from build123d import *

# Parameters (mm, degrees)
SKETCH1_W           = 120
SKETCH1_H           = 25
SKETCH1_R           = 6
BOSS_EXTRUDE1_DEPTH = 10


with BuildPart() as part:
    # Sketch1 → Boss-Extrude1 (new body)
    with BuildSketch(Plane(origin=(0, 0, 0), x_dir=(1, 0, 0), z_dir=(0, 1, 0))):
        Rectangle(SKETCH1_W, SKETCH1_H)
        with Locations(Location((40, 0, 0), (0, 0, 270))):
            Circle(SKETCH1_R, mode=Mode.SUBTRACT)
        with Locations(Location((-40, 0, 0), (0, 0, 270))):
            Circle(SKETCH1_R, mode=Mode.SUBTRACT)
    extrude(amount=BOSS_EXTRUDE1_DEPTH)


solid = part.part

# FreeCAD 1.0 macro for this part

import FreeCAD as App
import Part
import Sketcher


def add_polygon(sketch, points):
    """Adds a closed chain of lines whose ends are joined by coincident constraints."""
    first, n = sketch.GeometryCount, len(points)
    for a, b in zip(points, points[1:] + points[:1]):
        sketch.addGeometry(Part.LineSegment(App.Vector(*a, 0), App.Vector(*b, 0)), False)
    for i in range(n):
        sketch.addConstraint(Sketcher.Constraint("Coincident", first + i, 2, first + (i + 1) % n, 1))

doc = App.newDocument("Part")
body = doc.addObject("PartDesign::Body", "Body")

# Sketch on XZ plane
sketch1 = body.newObject("Sketcher::SketchObject", "Sketch")
sketch1.AttachmentSupport = (doc.getObject("XZ_Plane"), [""])
sketch1.MapMode = "FlatFace"
add_polygon(sketch1, [(-60, -12), (-60, 12), (60, 12), (60, -12)])  # lines 0-3
sketch1.addGeometry(Part.Circle(App.Vector(-40, 0, 0), App.Vector(0, 0, 1), 6), False)  # 4
sketch1.addGeometry(Part.Circle(App.Vector(40, 0, 0), App.Vector(0, 0, 1), 6), False)  # 5
sketch1.addConstraint(Sketcher.Constraint("Vertical", 0))
sketch1.addConstraint(Sketcher.Constraint("Horizontal", 1))
sketch1.addConstraint(Sketcher.Constraint("Vertical", 2))
sketch1.addConstraint(Sketcher.Constraint("Horizontal", 3))
sketch1.addConstraint(Sketcher.Constraint("Equal", 4, 5))
sketch1.addConstraint(Sketcher.Constraint("Symmetric", 4, 3, 5, 3, -1, 1))
sketch1.addConstraint(Sketcher.Constraint("Symmetric", 0, 2, 2, 2, -1, 1))
sketch1.addConstraint(Sketcher.Constraint("PointOnObject", 4, 3, -1))
sketch1.addConstraint(Sketcher.Constraint("Diameter", 4, 12.0))
sketch1.addConstraint(Sketcher.Constraint("DistanceX", 1, 1, 1, 2, 120.0))
sketch1.addConstraint(Sketcher.Constraint("DistanceY", 0, 1, 0, 2, 25.0))
sketch1.addConstraint(Sketcher.Constraint("DistanceX", 4, 3, -1, 1, 40.0))
pad1 = body.newObject("PartDesign::Pad", "Pad")
pad1.Profile = sketch1
pad1.Length = 10
pad1.Reversed = True

doc.recompute()
